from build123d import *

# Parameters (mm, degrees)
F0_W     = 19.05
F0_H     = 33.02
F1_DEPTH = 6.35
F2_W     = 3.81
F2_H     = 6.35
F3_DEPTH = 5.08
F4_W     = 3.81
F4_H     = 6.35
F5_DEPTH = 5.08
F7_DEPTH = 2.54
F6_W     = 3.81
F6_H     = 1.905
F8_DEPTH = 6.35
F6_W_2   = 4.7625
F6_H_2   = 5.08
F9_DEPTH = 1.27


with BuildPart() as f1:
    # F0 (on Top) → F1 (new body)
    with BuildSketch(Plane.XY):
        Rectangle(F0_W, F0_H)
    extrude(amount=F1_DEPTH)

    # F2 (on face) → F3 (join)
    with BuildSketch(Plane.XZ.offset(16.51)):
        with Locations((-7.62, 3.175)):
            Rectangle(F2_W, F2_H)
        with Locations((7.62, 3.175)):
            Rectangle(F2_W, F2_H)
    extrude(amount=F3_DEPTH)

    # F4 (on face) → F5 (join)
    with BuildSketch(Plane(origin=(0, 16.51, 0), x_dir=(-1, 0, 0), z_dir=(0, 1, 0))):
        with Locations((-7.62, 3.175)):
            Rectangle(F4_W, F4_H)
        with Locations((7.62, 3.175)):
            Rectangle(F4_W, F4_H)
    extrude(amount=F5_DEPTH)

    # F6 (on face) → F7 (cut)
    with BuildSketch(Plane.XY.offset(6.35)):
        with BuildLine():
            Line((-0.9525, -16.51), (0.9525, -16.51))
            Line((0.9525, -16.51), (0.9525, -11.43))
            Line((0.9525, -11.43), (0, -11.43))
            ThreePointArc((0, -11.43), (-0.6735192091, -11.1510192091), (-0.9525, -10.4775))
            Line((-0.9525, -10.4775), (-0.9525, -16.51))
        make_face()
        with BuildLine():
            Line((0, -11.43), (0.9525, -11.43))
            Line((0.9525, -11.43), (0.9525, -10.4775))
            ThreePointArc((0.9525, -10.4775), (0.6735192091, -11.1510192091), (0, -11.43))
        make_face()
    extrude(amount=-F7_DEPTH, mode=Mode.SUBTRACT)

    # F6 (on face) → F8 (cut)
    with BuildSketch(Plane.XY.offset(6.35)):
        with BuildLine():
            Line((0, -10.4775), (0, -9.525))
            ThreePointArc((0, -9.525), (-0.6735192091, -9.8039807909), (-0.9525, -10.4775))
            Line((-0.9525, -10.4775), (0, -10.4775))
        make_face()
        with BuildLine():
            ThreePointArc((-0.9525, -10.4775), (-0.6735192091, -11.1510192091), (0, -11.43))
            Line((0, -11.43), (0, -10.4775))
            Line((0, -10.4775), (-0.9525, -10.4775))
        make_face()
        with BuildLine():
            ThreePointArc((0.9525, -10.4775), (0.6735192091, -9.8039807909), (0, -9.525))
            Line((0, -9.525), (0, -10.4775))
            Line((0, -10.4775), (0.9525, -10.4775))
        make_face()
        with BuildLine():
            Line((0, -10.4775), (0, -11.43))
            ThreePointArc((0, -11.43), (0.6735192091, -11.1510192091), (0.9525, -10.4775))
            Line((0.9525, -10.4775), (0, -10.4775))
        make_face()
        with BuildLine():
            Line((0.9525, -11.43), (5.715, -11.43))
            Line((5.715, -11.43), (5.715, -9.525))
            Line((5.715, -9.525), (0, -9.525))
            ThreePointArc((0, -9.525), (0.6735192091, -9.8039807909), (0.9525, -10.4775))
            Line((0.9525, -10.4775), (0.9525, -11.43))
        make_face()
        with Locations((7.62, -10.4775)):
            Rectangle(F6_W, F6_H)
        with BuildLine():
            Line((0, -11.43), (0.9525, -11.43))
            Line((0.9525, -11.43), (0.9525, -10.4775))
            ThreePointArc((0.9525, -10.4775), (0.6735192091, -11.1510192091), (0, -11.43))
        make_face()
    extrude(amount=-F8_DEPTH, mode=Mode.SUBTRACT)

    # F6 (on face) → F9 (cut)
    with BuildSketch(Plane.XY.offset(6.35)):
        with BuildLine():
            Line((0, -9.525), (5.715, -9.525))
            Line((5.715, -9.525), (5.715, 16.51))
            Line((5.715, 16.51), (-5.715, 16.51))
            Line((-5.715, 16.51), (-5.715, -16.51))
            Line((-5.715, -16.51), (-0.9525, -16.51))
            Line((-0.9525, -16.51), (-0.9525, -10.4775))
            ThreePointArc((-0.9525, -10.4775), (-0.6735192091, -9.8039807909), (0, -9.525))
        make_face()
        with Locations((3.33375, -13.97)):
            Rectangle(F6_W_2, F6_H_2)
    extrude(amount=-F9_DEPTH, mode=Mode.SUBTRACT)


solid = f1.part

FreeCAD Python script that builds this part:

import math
import FreeCAD as App
import Part
import Sketcher
from FreeCAD import Vector
Q = App.Units.Quantity


def add_polygon(sketch, points):
    """Adds a closed chain of lines whose ends are joined by coincident constraints."""
    first, n = sketch.GeometryCount, len(points)
    for a, b in zip(points, points[1:] + points[:1]):
        sketch.addGeometry(Part.LineSegment(App.Vector(*a, 0), App.Vector(*b, 0)), False)
    for i in range(n):
        sketch.addConstraint(Sketcher.Constraint("Coincident", first + i, 2, first + (i + 1) % n, 1))

doc = App.newDocument("Part")
body = doc.addObject("PartDesign::Body", "Body")

# Sketch on XY plane
sketch1 = body.newObject("Sketcher::SketchObject", "Sketch")
sketch1.AttachmentSupport = (doc.getObject("XY_Plane"), [""])
sketch1.MapMode = "FlatFace"
add_polygon(sketch1, [(-9.525, 16.51), (-9.525, -16.51), (9.525, -16.51), (9.525, 16.51)])  # lines 0-3
sketch1.addConstraint([
    Sketcher.Constraint("Vertical", 0),
    Sketcher.Constraint("Horizontal", 1),
    Sketcher.Constraint("Vertical", 2),
    Sketcher.Constraint("Horizontal", 3),
    Sketcher.Constraint("Symmetric", 0, 2, 2, 2, -1, 1),
    Sketcher.Constraint("DistanceY", 0, 2, 0, 1, Q("1.3 in")),
    Sketcher.Constraint("DistanceX", 1, 1, 1, 2, Q("0.75 in")),
])
pad1 = body.newObject("PartDesign::Pad", "Pad")
pad1.Profile = sketch1
pad1.Length = Q("0.25 in")

# Sketch on XZ plane
sketch2 = body.newObject("Sketcher::SketchObject", "Sketch001")
sketch2.AttachmentSupport = (doc.getObject("XZ_Plane"), [""])
sketch2.MapMode = "FlatFace"
sketch2.AttachmentOffset = App.Placement(Vector(0, 0, 0.65 * 25.4), App.Rotation())
add_polygon(sketch2, [(-9.525, 6.35), (-9.525, 0), (-5.715, 0), (-5.715, 6.35)])  # lines 0-3
add_polygon(sketch2, [(5.715, 6.35), (5.715, 0), (9.525, 0), (9.525, 6.35)])  # lines 4-7
sketch2.addConstraint([
    Sketcher.Constraint("Vertical", 0),
    Sketcher.Constraint("Horizontal", 1),
    Sketcher.Constraint("Vertical", 2),
    Sketcher.Constraint("Horizontal", 3),
    Sketcher.Constraint("Vertical", 4),
    Sketcher.Constraint("Horizontal", 5),
    Sketcher.Constraint("Vertical", 6),
    Sketcher.Constraint("Horizontal", 7),
    Sketcher.Constraint("Symmetric", 1, 2, 4, 2, -1, 1),
    Sketcher.Constraint("Symmetric", 0, 2, 5, 2, -2),
    Sketcher.Constraint("Horizontal", 3, 2, 6, 2),
    Sketcher.Constraint("DistanceX", 1, 1, 1, 2, Q("0.15 in")),
    Sketcher.Constraint("DistanceY", 0, 2, 0, 1, Q("0.25 in")),
    Sketcher.Constraint("DistanceX", 0, 2, 4, 2, Q("0.6 in")),
])
pad2 = body.newObject("PartDesign::Pad", "Pad001")
pad2.Profile = sketch2
pad2.Length = Q("0.2 in")

# Sketch on XZ plane
sketch3 = body.newObject("Sketcher::SketchObject", "Sketch002")
sketch3.AttachmentSupport = (doc.getObject("XZ_Plane"), [""])
sketch3.MapMode = "FlatFace"
sketch3.AttachmentOffset = App.Placement(Vector(0, 0, -0.65 * 25.4), App.Rotation())
add_polygon(sketch3, [(9.525, 6.35), (9.525, 0), (5.715, 0), (5.715, 6.35)])  # lines 0-3
add_polygon(sketch3, [(-5.715, 6.35), (-5.715, 0), (-9.525, 0), (-9.525, 6.35)])  # lines 4-7
sketch3.addConstraint([
    Sketcher.Constraint("Vertical", 0),
    Sketcher.Constraint("Horizontal", 1),
    Sketcher.Constraint("Vertical", 2),
    Sketcher.Constraint("Horizontal", 3),
    Sketcher.Constraint("Vertical", 4),
    Sketcher.Constraint("Horizontal", 5),
    Sketcher.Constraint("Vertical", 6),
    Sketcher.Constraint("Horizontal", 7),
    Sketcher.Constraint("Symmetric", 1, 2, 4, 2, -1, 1),
    Sketcher.Constraint("Symmetric", 0, 2, 5, 2, -2),
    Sketcher.Constraint("Horizontal", 3, 2, 6, 2),
    Sketcher.Constraint("DistanceX", 1, 2, 1, 1, Q("0.15 in")),
    Sketcher.Constraint("DistanceY", 0, 2, 0, 1, Q("0.25 in")),
    Sketcher.Constraint("DistanceX", 4, 2, 0, 2, Q("0.6 in")),
])
pad3 = body.newObject("PartDesign::Pad", "Pad002")
pad3.Profile = sketch3
pad3.Length = Q("0.2 in")
pad3.Reversed = True

# Sketch on XY plane
sketch4 = body.newObject("Sketcher::SketchObject", "Sketch003")
sketch4.AttachmentSupport = (doc.getObject("XY_Plane"), [""])
sketch4.MapMode = "FlatFace"
sketch4.AttachmentOffset = App.Placement(Vector(0, 0, 0.25 * 25.4), App.Rotation())
sketch4.addGeometry([
    Part.LineSegment(Vector(-0.9525, -16.51, 0), Vector(0.9525, -16.51, 0)),  # 0
    Part.LineSegment(Vector(0.9525, -16.51, 0), Vector(0.9525, -10.4775, 0)),  # 1
    Part.ArcOfCircle(Part.Circle(Vector(0, -10.4775, 0), Vector(0, 0, 1), 0.9525), math.radians(-90), math.radians(0)),  # 2
    Part.ArcOfCircle(Part.Circle(Vector(0, -10.4775, 0), Vector(0, 0, 1), 0.9525), math.radians(180), math.radians(270)),  # 3
    Part.LineSegment(Vector(-0.9525, -10.4775, 0), Vector(-0.9525, -16.51, 0)),  # 4
], False)
sketch4.addConstraint([
    Sketcher.Constraint("Coincident", 0, 2, 1, 1),
    Sketcher.Constraint("Tangent", 1, 2, 2, 2),
    Sketcher.Constraint("Tangent", 2, 1, 3, 2),
    Sketcher.Constraint("Tangent", 3, 1, 4, 1),
    Sketcher.Constraint("Coincident", 4, 2, 0, 1),
    Sketcher.Constraint("Horizontal", 0),
    Sketcher.Constraint("Vertical", 1),
    Sketcher.Constraint("Vertical", 4),
    Sketcher.Constraint("Equal", 2, 3),
    Sketcher.Constraint("PointOnObject", 2, 3, -2),
    Sketcher.Constraint("PointOnObject", 2, 1, -2),
    Sketcher.Constraint("Radius", 2, Q("0.0375 in")),
    Sketcher.Constraint("DistanceY", 0, 2, 2, 1, Q("0.2 in")),
    Sketcher.Constraint("DistanceY", 0, 2, -1, 1, Q("0.65 in")),
])
pocket1 = body.newObject("PartDesign::Pocket", "Pocket")
pocket1.Profile = sketch4
pocket1.Length = Q("0.1 in")

# Sketch on XY plane
sketch5 = body.newObject("Sketcher::SketchObject", "Sketch004")
sketch5.AttachmentSupport = (doc.getObject("XY_Plane"), [""])
sketch5.MapMode = "FlatFace"
sketch5.AttachmentOffset = App.Placement(Vector(0, 0, 0.25 * 25.4), App.Rotation())
sketch5.addGeometry([
    Part.ArcOfCircle(Part.Circle(Vector(0, -10.4775, 0), Vector(0, 0, 1), 0.9525), math.radians(90), math.radians(180)),  # 0
    Part.ArcOfCircle(Part.Circle(Vector(0, -10.4775, 0), Vector(0, 0, 1), 0.9525), math.radians(180), math.radians(270)),  # 1
    Part.LineSegment(Vector(0, -11.43, 0), Vector(9.525, -11.43, 0)),  # 2
    Part.LineSegment(Vector(9.525, -11.43, 0), Vector(9.525, -9.525, 0)),  # 3
    Part.LineSegment(Vector(9.525, -9.525, 0), Vector(0, -9.525, 0)),  # 4
], False)
sketch5.addConstraint([
    Sketcher.Constraint("Tangent", 0, 2, 1, 1),
    Sketcher.Constraint("Tangent", 1, 2, 2, 1),
    Sketcher.Constraint("Coincident", 2, 2, 3, 1),
    Sketcher.Constraint("Coincident", 3, 2, 4, 1),
    Sketcher.Constraint("Tangent", 4, 2, 0, 1),
    Sketcher.Constraint("Horizontal", 2),
    Sketcher.Constraint("Vertical", 3),
    Sketcher.Constraint("Horizontal", 4),
    Sketcher.Constraint("Equal", 0, 1),
    Sketcher.Constraint("PointOnObject", 0, 3, -2),
    Sketcher.Constraint("Horizontal", 1, 3, 0, 2),
    Sketcher.Constraint("Radius", 0, Q("0.0375 in")),
    Sketcher.Constraint("DistanceX", 2, 1, 2, 2, Q("0.375 in")),
    Sketcher.Constraint("DistanceY", 1, 2, -1, 1, Q("0.45 in")),
])
pocket2 = body.newObject("PartDesign::Pocket", "Pocket001")
pocket2.Profile = sketch5
pocket2.Length = Q("0.25 in")

# Sketch on XY plane
sketch6 = body.newObject("Sketcher::SketchObject", "Sketch005")
sketch6.AttachmentSupport = (doc.getObject("XY_Plane"), [""])
sketch6.MapMode = "FlatFace"
sketch6.AttachmentOffset = App.Placement(Vector(0, 0, 0.25 * 25.4), App.Rotation())
sketch6.addGeometry(Part.LineSegment(Vector(0, -9.525, 0), Vector(5.715, -9.525, 0)), False)  # 0
sketch6.addGeometry(Part.LineSegment(Vector(5.715, -9.525, 0), Vector(5.715, 16.51, 0)), False)  # 1
sketch6.addGeometry(Part.LineSegment(Vector(5.715, 16.51, 0), Vector(-5.715, 16.51, 0)), False)  # 2
sketch6.addGeometry(Part.LineSegment(Vector(-5.715, 16.51, 0), Vector(-5.715, -16.51, 0)), False)  # 3
sketch6.addGeometry(Part.LineSegment(Vector(-5.715, -16.51, 0), Vector(-0.9525, -16.51, 0)), False)  # 4
sketch6.addGeometry(Part.LineSegment(Vector(-0.9525, -16.51, 0), Vector(-0.9525, -10.4775, 0)), False)  # 5
sketch6.addGeometry(Part.ArcOfCircle(Part.Circle(Vector(0, -10.4775, 0), Vector(0, 0, 1), 0.9525), math.radians(90), math.radians(180)), False)  # 6
add_polygon(sketch6, [(0.9525, -11.43), (0.9525, -16.51), (5.715, -16.51), (5.715, -11.43)])  # lines 7-10
sketch6.addConstraint([
    Sketcher.Constraint("Coincident", 0, 2, 1, 1),
    Sketcher.Constraint("Coincident", 1, 2, 2, 1),
    Sketcher.Constraint("Coincident", 2, 2, 3, 1),
    Sketcher.Constraint("Coincident", 3, 2, 4, 1),
    Sketcher.Constraint("Coincident", 4, 2, 5, 1),
    Sketcher.Constraint("Tangent", 5, 2, 6, 2),
    Sketcher.Constraint("Tangent", 6, 1, 0, 1),
    Sketcher.Constraint("Horizontal", 0),
    Sketcher.Constraint("Vertical", 1),
    Sketcher.Constraint("Horizontal", 2),
    Sketcher.Constraint("Vertical", 3),
    Sketcher.Constraint("Horizontal", 4),
    Sketcher.Constraint("Vertical", 5),
    Sketcher.Constraint("Vertical", 7),
    Sketcher.Constraint("Horizontal", 8),
    Sketcher.Constraint("Vertical", 9),
    Sketcher.Constraint("Horizontal", 10),
    Sketcher.Constraint("Symmetric", 1, 2, 3, 2, -1, 1),
    Sketcher.Constraint("Symmetric", 2, 2, 8, 2, -1, 1),
    Sketcher.Constraint("PointOnObject", 6, 3, -2),
    Sketcher.Constraint("Equal", 4, 8),
    Sketcher.Constraint("DistanceY", 3, 2, 3, 1, Q("1.3 in")),
    Sketcher.Constraint("DistanceY", 7, 2, 7, 1, Q("0.2 in")),
    Sketcher.Constraint("DistanceX", 2, 2, 2, 1, Q("0.45 in")),
    Sketcher.Constraint("Radius", 6, Q("0.0375 in")),
    Sketcher.Constraint("DistanceY", 1, 1, 1, 2, Q("1.025 in")),
])
pocket3 = body.newObject("PartDesign::Pocket", "Pocket002")
pocket3.Profile = sketch6
pocket3.Length = Q("0.05 in")

doc.recompute()
